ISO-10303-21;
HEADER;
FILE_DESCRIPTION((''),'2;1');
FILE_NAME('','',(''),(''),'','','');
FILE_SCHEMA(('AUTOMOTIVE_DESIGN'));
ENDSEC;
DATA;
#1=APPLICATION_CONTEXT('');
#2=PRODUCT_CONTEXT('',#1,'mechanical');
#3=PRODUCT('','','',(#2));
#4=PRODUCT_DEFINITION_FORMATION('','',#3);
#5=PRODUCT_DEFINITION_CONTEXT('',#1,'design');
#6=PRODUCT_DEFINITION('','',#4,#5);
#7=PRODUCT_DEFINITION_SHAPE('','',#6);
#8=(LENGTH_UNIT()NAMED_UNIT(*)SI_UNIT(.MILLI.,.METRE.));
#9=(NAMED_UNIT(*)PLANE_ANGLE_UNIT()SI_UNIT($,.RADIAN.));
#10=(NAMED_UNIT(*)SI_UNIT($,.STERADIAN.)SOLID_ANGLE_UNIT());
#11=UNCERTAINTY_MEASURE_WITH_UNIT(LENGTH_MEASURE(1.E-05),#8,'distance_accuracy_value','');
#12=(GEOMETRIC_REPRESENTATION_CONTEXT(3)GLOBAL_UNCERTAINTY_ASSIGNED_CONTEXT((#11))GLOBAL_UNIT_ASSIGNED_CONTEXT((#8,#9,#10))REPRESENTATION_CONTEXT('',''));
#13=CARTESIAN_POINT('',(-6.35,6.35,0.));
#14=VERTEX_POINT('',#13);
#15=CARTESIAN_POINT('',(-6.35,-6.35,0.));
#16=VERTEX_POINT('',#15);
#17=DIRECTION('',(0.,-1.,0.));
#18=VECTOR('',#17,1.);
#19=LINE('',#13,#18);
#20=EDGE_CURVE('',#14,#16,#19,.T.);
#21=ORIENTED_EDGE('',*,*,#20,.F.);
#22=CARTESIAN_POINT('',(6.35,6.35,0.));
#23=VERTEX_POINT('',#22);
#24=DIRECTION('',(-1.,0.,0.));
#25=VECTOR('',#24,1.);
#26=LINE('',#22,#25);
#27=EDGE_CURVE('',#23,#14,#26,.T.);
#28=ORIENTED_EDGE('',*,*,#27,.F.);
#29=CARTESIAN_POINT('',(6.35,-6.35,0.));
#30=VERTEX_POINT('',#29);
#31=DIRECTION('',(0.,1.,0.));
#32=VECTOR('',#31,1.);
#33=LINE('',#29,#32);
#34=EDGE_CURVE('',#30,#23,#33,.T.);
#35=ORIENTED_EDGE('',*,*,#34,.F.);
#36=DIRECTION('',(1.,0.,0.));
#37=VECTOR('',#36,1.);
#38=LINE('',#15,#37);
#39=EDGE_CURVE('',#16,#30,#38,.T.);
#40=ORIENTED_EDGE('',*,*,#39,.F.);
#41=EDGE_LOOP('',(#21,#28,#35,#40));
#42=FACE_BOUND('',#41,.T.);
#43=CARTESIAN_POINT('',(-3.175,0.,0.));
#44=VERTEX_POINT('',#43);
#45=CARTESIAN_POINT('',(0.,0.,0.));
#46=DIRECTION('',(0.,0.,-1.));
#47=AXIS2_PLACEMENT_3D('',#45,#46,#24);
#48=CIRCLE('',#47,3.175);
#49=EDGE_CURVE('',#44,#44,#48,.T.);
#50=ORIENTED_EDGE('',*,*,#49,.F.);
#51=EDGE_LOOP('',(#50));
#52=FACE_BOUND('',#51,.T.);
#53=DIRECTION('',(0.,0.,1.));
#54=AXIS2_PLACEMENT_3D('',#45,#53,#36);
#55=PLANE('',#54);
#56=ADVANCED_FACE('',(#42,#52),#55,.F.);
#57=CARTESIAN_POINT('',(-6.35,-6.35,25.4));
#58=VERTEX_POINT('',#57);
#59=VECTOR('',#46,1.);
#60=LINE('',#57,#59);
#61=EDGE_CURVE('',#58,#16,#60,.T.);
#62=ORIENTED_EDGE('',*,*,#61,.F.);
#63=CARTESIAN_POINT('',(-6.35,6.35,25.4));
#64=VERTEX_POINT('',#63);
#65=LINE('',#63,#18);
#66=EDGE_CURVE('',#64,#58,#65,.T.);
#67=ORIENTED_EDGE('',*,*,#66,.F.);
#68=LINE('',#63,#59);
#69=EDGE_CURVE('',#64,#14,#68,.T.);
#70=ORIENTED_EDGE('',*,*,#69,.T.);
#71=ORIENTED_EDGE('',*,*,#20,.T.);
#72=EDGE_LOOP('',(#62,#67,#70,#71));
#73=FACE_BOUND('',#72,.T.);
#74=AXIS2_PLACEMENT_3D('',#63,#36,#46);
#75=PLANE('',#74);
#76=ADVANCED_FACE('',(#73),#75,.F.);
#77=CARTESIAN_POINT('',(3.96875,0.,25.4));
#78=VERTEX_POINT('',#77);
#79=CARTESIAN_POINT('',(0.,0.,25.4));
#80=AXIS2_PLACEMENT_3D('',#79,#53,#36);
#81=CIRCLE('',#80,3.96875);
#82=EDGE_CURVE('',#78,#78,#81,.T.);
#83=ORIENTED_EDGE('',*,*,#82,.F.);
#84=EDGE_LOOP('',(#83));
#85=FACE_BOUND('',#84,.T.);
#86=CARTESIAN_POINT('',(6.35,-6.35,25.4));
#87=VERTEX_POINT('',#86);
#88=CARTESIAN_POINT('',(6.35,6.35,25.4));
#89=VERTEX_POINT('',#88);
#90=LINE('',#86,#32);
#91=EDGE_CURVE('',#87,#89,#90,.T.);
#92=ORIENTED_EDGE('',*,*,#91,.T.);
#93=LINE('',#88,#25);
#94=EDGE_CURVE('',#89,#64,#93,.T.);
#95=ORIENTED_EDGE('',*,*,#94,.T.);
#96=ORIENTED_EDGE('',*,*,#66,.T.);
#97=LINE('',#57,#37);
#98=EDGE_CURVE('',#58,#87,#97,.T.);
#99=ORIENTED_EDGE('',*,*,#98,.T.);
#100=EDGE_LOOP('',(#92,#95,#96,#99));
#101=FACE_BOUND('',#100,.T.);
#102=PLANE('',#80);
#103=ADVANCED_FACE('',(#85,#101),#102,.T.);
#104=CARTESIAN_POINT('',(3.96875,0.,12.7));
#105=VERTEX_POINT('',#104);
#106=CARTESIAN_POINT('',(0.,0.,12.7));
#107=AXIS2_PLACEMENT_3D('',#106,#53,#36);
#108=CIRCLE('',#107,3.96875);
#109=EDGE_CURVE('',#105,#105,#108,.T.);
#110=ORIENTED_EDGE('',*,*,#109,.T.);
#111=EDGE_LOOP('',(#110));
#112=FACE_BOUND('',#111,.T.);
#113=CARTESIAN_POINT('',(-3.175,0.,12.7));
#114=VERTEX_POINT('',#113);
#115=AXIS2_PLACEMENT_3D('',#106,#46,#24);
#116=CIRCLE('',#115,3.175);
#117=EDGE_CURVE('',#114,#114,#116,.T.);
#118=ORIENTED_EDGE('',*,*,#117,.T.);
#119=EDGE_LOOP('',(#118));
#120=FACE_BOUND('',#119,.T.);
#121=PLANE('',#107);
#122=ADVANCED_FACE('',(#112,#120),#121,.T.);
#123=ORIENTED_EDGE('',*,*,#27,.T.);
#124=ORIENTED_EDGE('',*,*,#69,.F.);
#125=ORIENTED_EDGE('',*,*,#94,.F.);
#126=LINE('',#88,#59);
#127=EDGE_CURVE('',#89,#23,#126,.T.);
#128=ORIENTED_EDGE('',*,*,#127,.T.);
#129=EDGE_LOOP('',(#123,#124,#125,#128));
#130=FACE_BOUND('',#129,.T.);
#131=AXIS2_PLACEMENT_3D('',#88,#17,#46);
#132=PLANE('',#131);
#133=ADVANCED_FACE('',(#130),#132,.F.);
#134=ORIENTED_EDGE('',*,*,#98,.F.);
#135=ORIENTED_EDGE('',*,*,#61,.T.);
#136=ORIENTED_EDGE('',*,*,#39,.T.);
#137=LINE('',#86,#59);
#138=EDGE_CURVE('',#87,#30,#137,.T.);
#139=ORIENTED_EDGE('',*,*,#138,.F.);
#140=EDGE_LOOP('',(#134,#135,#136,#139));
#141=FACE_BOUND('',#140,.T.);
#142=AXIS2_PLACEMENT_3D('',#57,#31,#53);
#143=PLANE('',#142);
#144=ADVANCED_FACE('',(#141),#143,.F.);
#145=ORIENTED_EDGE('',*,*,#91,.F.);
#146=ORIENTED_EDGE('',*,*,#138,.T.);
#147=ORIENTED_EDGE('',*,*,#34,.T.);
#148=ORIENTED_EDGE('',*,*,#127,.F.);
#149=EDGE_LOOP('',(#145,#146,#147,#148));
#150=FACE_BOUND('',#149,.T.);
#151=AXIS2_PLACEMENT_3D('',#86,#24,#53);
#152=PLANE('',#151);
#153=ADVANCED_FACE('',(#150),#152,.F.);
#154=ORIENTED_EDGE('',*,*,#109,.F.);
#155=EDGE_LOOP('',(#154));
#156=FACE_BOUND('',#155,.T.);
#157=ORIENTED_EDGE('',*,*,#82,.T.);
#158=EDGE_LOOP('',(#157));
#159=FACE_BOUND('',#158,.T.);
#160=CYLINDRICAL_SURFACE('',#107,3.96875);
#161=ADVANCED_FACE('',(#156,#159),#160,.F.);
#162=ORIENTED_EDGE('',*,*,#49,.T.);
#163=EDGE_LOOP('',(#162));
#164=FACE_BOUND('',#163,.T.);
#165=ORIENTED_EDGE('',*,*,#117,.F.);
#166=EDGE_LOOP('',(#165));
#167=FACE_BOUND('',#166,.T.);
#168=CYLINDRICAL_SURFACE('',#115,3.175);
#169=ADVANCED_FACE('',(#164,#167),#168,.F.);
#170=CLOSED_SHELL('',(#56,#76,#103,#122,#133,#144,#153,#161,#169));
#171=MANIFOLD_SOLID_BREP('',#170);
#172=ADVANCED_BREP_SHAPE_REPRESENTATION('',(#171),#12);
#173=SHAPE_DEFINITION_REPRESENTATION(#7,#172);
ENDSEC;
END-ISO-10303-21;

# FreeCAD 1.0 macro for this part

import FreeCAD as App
import Part
import Sketcher
Q = App.Units.Quantity

doc = App.newDocument("Part")
body = doc.addObject("PartDesign::Body", "Body")

# Sketch on XY plane
sketch1 = body.newObject("Sketcher::SketchObject", "Sketch")
sketch1.AttachmentSupport = (doc.getObject("XY_Plane"), [""])
sketch1.MapMode = "FlatFace"
sketch1.addGeometry(Part.LineSegment(App.Vector(-6, 6, 0), App.Vector(-6, -6, 0)), False)
sketch1.addGeometry(Part.LineSegment(App.Vector(-6, -6, 0), App.Vector(6, -6, 0)), False)
sketch1.addGeometry(Part.LineSegment(App.Vector(6, -6, 0), App.Vector(6, 6, 0)), False)
sketch1.addGeometry(Part.LineSegment(App.Vector(6, 6, 0), App.Vector(-6, 6, 0)), False)
sketch1.addConstraint(Sketcher.Constraint("Coincident", 0, 2, 1, 1))
sketch1.addConstraint(Sketcher.Constraint("Coincident", 1, 2, 2, 1))
sketch1.addConstraint(Sketcher.Constraint("Coincident", 2, 2, 3, 1))
sketch1.addConstraint(Sketcher.Constraint("Coincident", 3, 2, 0, 1))
sketch1.addConstraint(Sketcher.Constraint("Vertical", 0))
sketch1.addConstraint(Sketcher.Constraint("Horizontal", 1))
sketch1.addConstraint(Sketcher.Constraint("Vertical", 2))
sketch1.addConstraint(Sketcher.Constraint("Horizontal", 3))
sketch1.addConstraint(Sketcher.Constraint("Symmetric", 0, 2, 2, 2, -1, 1))
sketch1.addConstraint(Sketcher.Constraint("Equal", 3, 0))
sketch1.addConstraint(Sketcher.Constraint("DistanceX", 1, 1, 1, 2, Q("0.5 in")))
pad1 = body.newObject("PartDesign::Pad", "Pad")
pad1.Profile = sketch1
pad1.Length = Q("1 in")

# Sketch on XY plane
sketch2 = body.newObject("Sketcher::SketchObject", "Sketch001")
sketch2.AttachmentSupport = (doc.getObject("XY_Plane"), [""])
sketch2.MapMode = "FlatFace"
sketch2.addGeometry(Part.Circle(App.Vector(0, 0, 0), App.Vector(0, 0, 1), 3.2), False)
sketch2.addConstraint(Sketcher.Constraint("Coincident", 0, 3, -1, 1))
sketch2.addConstraint(Sketcher.Constraint("Diameter", 0, Q("0.25 in")))
pocket1 = body.newObject("PartDesign::Pocket", "Pocket")
pocket1.Profile = sketch2
pocket1.Length = Q("0.5 in")
pocket1.Reversed = True

# Sketch on XY plane
sketch3 = body.newObject("Sketcher::SketchObject", "Sketch002")
sketch3.AttachmentSupport = (doc.getObject("XY_Plane"), [""])
sketch3.MapMode = "FlatFace"
sketch3.AttachmentOffset = App.Placement(App.Vector(0, 0, 1 * 25.4), App.Rotation())
sketch3.addGeometry(Part.Circle(App.Vector(0, 0, 0), App.Vector(0, 0, 1), 4), False)
sketch3.addConstraint(Sketcher.Constraint("Coincident", 0, 3, -1, 1))
sketch3.addConstraint(Sketcher.Constraint("Diameter", 0, Q("0.3125 in")))
pocket2 = body.newObject("PartDesign::Pocket", "Pocket001")
pocket2.Profile = sketch3
pocket2.Length = Q("0.5 in")

doc.recompute()
